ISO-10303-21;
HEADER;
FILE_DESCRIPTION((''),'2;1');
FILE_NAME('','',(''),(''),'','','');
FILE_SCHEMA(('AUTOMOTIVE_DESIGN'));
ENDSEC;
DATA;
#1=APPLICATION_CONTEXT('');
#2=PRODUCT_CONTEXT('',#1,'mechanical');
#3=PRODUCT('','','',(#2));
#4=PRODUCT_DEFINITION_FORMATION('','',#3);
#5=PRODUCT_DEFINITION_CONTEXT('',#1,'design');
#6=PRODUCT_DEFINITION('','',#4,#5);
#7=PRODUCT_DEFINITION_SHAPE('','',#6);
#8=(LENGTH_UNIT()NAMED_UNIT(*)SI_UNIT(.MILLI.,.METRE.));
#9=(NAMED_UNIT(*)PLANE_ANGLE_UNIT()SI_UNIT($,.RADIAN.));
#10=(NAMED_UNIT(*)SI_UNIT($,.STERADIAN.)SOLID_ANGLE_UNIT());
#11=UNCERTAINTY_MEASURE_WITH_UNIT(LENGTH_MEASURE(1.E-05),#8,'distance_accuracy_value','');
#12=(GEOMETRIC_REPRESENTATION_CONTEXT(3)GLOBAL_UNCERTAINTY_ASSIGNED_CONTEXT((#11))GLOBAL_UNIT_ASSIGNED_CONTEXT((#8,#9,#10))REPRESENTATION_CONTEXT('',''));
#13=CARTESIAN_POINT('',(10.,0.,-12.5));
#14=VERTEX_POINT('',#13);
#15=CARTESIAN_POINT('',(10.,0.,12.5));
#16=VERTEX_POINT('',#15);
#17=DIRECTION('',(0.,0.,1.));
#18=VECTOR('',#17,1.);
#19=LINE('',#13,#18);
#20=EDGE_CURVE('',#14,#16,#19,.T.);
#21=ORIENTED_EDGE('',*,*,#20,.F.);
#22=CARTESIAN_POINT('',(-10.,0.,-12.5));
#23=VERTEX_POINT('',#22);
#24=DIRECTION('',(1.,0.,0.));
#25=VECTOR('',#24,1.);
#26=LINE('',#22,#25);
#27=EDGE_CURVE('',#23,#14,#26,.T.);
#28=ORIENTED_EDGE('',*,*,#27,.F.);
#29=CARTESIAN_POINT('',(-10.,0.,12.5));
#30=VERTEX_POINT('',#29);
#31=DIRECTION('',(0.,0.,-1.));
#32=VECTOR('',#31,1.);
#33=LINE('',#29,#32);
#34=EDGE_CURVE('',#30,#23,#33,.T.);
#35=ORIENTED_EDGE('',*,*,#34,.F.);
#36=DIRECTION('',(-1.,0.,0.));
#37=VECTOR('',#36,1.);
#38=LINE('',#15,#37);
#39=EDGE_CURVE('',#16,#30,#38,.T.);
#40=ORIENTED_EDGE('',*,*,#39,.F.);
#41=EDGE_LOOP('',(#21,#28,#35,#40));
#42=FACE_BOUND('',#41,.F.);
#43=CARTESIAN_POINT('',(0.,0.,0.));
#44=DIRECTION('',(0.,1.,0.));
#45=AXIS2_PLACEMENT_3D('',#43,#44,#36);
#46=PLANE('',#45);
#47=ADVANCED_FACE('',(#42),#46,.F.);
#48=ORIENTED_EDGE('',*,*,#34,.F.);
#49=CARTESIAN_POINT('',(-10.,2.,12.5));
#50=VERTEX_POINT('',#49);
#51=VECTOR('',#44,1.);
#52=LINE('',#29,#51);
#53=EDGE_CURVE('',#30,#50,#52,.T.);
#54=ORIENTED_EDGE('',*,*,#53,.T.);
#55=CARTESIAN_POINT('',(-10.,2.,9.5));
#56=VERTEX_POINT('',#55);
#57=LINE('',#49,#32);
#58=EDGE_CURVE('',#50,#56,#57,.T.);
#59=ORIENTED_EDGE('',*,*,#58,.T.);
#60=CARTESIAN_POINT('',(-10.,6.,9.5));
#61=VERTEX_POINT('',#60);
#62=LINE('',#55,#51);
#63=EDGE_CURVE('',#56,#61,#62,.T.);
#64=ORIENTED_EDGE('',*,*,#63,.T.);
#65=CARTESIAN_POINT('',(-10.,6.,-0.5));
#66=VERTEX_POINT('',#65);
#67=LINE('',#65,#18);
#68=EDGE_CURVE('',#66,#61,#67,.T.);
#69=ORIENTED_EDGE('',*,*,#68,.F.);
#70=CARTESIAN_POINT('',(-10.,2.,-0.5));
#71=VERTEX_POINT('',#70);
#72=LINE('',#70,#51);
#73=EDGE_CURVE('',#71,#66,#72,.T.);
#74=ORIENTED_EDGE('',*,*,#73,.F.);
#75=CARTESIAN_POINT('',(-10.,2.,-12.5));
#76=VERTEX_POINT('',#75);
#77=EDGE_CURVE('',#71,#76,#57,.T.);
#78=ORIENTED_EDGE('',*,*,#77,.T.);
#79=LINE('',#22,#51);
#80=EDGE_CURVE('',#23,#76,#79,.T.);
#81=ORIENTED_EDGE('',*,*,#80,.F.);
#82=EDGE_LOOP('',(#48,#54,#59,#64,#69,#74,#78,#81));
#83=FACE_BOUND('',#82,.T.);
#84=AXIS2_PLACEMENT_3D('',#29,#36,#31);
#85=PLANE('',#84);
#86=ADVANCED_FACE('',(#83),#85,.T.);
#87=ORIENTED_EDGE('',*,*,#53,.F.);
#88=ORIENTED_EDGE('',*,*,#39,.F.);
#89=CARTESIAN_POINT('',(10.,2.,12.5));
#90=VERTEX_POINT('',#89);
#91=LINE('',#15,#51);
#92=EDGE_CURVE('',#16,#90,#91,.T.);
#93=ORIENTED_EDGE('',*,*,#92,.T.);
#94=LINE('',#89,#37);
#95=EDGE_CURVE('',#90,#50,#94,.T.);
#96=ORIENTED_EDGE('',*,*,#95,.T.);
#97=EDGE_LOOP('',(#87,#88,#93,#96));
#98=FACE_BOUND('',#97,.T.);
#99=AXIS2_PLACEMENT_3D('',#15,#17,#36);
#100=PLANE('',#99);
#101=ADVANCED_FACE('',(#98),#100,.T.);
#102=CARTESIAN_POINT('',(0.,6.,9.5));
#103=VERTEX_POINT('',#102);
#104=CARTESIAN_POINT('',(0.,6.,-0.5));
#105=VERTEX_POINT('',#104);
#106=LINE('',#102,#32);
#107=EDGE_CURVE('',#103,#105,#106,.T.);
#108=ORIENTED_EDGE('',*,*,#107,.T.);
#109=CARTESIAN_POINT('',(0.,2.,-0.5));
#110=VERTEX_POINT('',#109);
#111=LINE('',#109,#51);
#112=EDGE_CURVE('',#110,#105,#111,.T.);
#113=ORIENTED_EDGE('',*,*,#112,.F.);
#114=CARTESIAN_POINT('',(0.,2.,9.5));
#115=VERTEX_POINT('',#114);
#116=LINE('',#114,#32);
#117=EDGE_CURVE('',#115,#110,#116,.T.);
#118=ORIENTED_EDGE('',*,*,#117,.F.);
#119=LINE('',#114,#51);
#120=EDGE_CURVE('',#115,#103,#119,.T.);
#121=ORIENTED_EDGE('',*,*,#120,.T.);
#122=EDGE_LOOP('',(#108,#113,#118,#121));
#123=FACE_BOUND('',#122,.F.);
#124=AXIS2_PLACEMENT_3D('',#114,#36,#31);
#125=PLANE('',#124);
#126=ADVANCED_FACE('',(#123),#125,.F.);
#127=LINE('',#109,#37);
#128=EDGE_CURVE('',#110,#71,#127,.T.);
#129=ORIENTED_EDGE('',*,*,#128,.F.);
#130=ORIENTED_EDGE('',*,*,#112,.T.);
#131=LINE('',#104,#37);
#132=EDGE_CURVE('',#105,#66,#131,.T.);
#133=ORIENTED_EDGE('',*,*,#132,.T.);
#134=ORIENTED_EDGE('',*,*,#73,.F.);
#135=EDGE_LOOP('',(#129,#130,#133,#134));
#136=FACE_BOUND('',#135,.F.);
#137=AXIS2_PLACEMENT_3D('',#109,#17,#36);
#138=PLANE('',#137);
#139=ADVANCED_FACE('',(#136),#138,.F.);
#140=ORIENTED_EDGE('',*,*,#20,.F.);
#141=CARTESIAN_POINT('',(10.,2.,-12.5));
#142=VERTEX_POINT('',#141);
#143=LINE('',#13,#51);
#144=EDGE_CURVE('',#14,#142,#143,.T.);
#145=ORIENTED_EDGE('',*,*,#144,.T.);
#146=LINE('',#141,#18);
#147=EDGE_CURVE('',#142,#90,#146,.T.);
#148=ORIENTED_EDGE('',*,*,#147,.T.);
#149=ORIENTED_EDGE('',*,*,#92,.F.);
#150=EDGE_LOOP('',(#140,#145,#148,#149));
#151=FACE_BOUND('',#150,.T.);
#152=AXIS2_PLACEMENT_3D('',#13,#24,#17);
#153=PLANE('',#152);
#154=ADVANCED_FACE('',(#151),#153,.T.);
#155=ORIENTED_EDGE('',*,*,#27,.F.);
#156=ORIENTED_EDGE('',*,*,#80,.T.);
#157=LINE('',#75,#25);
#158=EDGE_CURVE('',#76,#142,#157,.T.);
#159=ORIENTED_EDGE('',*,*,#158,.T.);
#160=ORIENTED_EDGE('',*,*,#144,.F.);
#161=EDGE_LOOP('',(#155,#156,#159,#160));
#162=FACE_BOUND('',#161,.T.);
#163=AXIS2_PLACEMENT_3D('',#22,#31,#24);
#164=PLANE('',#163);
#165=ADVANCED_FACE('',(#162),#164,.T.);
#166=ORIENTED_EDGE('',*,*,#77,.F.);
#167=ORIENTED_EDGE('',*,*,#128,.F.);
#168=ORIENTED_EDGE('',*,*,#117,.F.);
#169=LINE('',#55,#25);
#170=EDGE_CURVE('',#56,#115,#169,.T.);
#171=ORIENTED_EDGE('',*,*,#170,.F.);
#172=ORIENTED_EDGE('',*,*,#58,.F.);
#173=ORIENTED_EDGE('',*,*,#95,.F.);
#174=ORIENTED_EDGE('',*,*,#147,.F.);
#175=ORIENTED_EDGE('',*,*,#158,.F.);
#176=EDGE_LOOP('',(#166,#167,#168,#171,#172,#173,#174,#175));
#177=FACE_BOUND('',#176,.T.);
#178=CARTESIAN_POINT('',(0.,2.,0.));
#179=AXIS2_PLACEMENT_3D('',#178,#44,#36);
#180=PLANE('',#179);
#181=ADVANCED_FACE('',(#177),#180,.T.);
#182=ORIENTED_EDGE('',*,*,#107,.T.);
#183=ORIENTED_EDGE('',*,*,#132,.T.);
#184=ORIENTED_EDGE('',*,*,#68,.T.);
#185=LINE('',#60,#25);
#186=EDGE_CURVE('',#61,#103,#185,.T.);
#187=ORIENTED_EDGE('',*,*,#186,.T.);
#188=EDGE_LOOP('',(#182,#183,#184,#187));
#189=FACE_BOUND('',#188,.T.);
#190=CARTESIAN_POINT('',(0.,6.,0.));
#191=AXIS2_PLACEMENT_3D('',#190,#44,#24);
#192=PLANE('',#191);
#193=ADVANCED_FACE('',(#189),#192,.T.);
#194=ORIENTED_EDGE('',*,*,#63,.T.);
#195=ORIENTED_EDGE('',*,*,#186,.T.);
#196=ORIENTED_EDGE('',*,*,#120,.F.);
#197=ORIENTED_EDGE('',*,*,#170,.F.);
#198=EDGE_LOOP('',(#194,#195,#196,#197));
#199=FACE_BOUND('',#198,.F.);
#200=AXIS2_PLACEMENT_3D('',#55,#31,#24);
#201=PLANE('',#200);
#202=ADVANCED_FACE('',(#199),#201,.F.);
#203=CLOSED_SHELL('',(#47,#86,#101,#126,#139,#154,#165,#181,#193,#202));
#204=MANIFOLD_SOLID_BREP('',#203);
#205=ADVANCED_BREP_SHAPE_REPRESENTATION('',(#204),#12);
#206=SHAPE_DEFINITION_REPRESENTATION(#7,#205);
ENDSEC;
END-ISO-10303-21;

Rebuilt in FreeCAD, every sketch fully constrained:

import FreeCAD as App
import Part
import Sketcher


def add_polygon(sketch, points):
    """Adds a closed chain of lines whose ends are joined by coincident constraints."""
    first, n = sketch.GeometryCount, len(points)
    for a, b in zip(points, points[1:] + points[:1]):
        sketch.addGeometry(Part.LineSegment(App.Vector(*a, 0), App.Vector(*b, 0)), False)
    for i in range(n):
        sketch.addConstraint(Sketcher.Constraint("Coincident", first + i, 2, first + (i + 1) % n, 1))

doc = App.newDocument("Part")
params = doc.addObject("Spreadsheet::Sheet", "Params")
for row, (alias, value) in enumerate([
    ("sketch1_width", "20 mm"),
    ("sketch1_height", "25 mm"),
    ("pad1_length", "2 mm"),
    ("sketch2_width", "10 mm"),
    ("pad2_length", "4 mm"),
], start=1):
    params.set(f"A{row}", alias)
    params.set(f"B{row}", "=" + value)
    params.setAlias(f"B{row}", alias)

body = doc.addObject("PartDesign::Body", "Body")

sketch1 = body.newObject("Sketcher::SketchObject", "Sketch")
sketch1.AttachmentSupport = (doc.getObject("XZ_Plane"), [""])
sketch1.MapMode = "FlatFace"
add_polygon(sketch1, [(-10, 12), (10, 12), (10, -12), (-10, -12)])
sketch1.addConstraint(Sketcher.Constraint("Horizontal", 0))
sketch1.addConstraint(Sketcher.Constraint("Vertical", 1))
sketch1.addConstraint(Sketcher.Constraint("Horizontal", 2))
sketch1.addConstraint(Sketcher.Constraint("Vertical", 3))
sketch1.addConstraint(Sketcher.Constraint("Symmetric", 0, 2, 2, 2, -1, 1))
sketch1.addConstraint(Sketcher.Constraint("DistanceX", 0, 1, 0, 2, 20.0))
sketch1.addConstraint(Sketcher.Constraint("DistanceY", 1, 2, 1, 1, 25.0))
sketch1.setExpression("Constraints[9]", "Params.sketch1_width")
sketch1.setExpression("Constraints[10]", "Params.sketch1_height")
pad1 = body.newObject("PartDesign::Pad", "Pad")
pad1.Profile = sketch1
pad1.setExpression("Length", "Params.pad1_length")
pad1.Reversed = True

sketch2 = body.newObject("Sketcher::SketchObject", "Sketch001")
sketch2.AttachmentSupport = (doc.getObject("XZ_Plane"), [""])
sketch2.MapMode = "FlatFace"
sketch2.AttachmentOffset = App.Placement(App.Vector(0, 0, -2), App.Rotation())
add_polygon(sketch2, [(-10, 0), (-10, 10), (0, 10), (0, 0)])
sketch2.addConstraint(Sketcher.Constraint("Vertical", 0))
sketch2.addConstraint(Sketcher.Constraint("Horizontal", 1))
sketch2.addConstraint(Sketcher.Constraint("Vertical", 2))
sketch2.addConstraint(Sketcher.Constraint("Horizontal", 3))
sketch2.addConstraint(Sketcher.Constraint("PointOnObject", 1, 2, -2))
sketch2.addConstraint(Sketcher.Constraint("Equal", 3, 0))
sketch2.addConstraint(Sketcher.Constraint("DistanceX", 1, 1, 1, 2, 10.0))
sketch2.addConstraint(Sketcher.Constraint("DistanceY", -1, 1, 0, 2, 9.5))
sketch2.setExpression("Constraints[10]", "Params.sketch2_width")
pad2 = body.newObject("PartDesign::Pad", "Pad001")
pad2.Profile = sketch2
pad2.setExpression("Length", "Params.pad2_length")
pad2.Reversed = True

doc.recompute()
